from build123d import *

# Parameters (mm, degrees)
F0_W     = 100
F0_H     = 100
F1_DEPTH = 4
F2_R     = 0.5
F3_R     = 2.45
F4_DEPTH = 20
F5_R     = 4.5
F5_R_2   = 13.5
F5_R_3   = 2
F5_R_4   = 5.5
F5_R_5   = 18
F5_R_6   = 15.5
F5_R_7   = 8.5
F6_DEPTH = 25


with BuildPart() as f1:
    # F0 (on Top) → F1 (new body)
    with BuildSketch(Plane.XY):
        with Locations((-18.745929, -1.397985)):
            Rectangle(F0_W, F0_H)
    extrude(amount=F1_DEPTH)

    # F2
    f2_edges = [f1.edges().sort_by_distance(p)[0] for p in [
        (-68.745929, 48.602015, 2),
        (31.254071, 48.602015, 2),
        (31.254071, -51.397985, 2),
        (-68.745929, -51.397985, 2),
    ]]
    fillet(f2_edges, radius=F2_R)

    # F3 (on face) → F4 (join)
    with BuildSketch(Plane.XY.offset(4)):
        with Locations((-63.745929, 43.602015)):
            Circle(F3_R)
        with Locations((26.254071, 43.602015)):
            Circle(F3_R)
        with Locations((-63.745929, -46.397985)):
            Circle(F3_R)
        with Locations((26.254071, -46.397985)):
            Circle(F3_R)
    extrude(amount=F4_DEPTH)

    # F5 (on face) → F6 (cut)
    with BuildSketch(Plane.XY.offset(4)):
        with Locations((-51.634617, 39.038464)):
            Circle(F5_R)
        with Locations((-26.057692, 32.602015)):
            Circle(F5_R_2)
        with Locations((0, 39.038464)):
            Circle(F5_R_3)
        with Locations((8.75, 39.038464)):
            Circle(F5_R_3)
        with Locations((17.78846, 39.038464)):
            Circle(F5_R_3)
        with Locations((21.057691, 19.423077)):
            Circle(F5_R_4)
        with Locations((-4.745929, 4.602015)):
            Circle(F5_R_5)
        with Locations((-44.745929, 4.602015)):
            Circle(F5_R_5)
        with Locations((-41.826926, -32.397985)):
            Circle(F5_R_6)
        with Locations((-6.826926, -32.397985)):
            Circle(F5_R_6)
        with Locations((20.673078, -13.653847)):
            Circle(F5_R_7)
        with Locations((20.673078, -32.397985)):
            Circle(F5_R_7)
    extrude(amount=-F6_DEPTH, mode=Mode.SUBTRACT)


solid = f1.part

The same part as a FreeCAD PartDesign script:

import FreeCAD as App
import Part
import Sketcher
from FreeCAD import Vector


def edges_at(feature, points):
    """Names of the edges that pass closest to the given points."""
    edges = feature.Shape.Edges
    near = lambda p: min(range(len(edges)), key=lambda i: edges[i].distToShape(Part.Vertex(*p))[0])
    return sorted({f"Edge{near(p) + 1}" for p in points})

doc = App.newDocument("Part")
body = doc.addObject("PartDesign::Body", "Body")

sketch1 = body.newObject("Sketcher::SketchObject", "Sketch")
sketch1.AttachmentSupport = (doc.getObject("XY_Plane"), [""])
sketch1.MapMode = "FlatFace"
sketch1.addGeometry(Part.LineSegment(Vector(-68.745929, 48.602015, 0), Vector(-68.745929, -51.397985, 0)), False)
sketch1.addGeometry(Part.LineSegment(Vector(-68.745929, -51.397985, 0), Vector(31.254071, -51.397985, 0)), False)
sketch1.addGeometry(Part.LineSegment(Vector(31.254071, -51.397985, 0), Vector(31.254071, 48.602015, 0)), False)
sketch1.addGeometry(Part.LineSegment(Vector(31.254071, 48.602015, 0), Vector(-68.745929, 48.602015, 0)), False)
sketch1.addConstraint(Sketcher.Constraint("Coincident", 0, 2, 1, 1))
sketch1.addConstraint(Sketcher.Constraint("Coincident", 1, 2, 2, 1))
sketch1.addConstraint(Sketcher.Constraint("Coincident", 2, 2, 3, 1))
sketch1.addConstraint(Sketcher.Constraint("Coincident", 3, 2, 0, 1))
sketch1.addConstraint(Sketcher.Constraint("Vertical", 0))
sketch1.addConstraint(Sketcher.Constraint("Horizontal", 1))
sketch1.addConstraint(Sketcher.Constraint("Vertical", 2))
sketch1.addConstraint(Sketcher.Constraint("Horizontal", 3))
sketch1.addConstraint(Sketcher.Constraint("Equal", 3, 0))
sketch1.addConstraint(Sketcher.Constraint("DistanceX", 1, 1, 1, 2, 100.0))
sketch1.addConstraint(Sketcher.Constraint("DistanceX", 0, 2, -1, 1, 68.745929))
sketch1.addConstraint(Sketcher.Constraint("DistanceY", 0, 2, -1, 1, 51.397985))
pad1 = body.newObject("PartDesign::Pad", "Pad")
pad1.Profile = sketch1
pad1.Length = 4
doc.recompute()

fillet = body.newObject("PartDesign::Fillet", "Fillet")
fillet.Base = (pad1, edges_at(pad1, [
    (-68.746, 48.602, 2),
    (31.254, 48.602, 2),
    (31.254, -51.398, 2),
    (-68.746, -51.398, 2),
]))
fillet.Radius = 0.5

sketch2 = body.newObject("Sketcher::SketchObject", "Sketch001")
sketch2.AttachmentSupport = (doc.getObject("XY_Plane"), [""])
sketch2.MapMode = "FlatFace"
sketch2.AttachmentOffset = App.Placement(Vector(0, 0, 4), App.Rotation())
sketch2.addGeometry(Part.Circle(Vector(-63.745929, 43.602015, 0), Vector(0, 0, 1), 2.45), False)
sketch2.addGeometry(Part.Circle(Vector(26.254071, 43.602015, 0), Vector(0, 0, 1), 2.45), False)
sketch2.addGeometry(Part.Circle(Vector(-63.745929, -46.397985, 0), Vector(0, 0, 1), 2.45), False)
sketch2.addGeometry(Part.Circle(Vector(26.254071, -46.397985, 0), Vector(0, 0, 1), 2.45), False)
sketch2.addConstraint(Sketcher.Constraint("Equal", 0, 1))
sketch2.addConstraint(Sketcher.Constraint("Equal", 1, 2))
sketch2.addConstraint(Sketcher.Constraint("Equal", 2, 3))
sketch2.addConstraint(Sketcher.Constraint("Horizontal", 0, 3, 1, 3))
sketch2.addConstraint(Sketcher.Constraint("Horizontal", 2, 3, 3, 3))
sketch2.addConstraint(Sketcher.Constraint("Vertical", 0, 3, 2, 3))
sketch2.addConstraint(Sketcher.Constraint("Vertical", 1, 3, 3, 3))
sketch2.addConstraint(Sketcher.Constraint("Diameter", 0, 4.9))
sketch2.addConstraint(Sketcher.Constraint("DistanceX", 0, 3, 1, 3, 90.0))
sketch2.addConstraint(Sketcher.Constraint("DistanceY", 2, 3, 0, 3, 90.0))
sketch2.addConstraint(Sketcher.Constraint("DistanceX", 0, 3, -1, 1, 63.745929))
sketch2.addConstraint(Sketcher.Constraint("DistanceY", -1, 1, 0, 3, 43.602015))
pad2 = body.newObject("PartDesign::Pad", "Pad001")
pad2.Profile = sketch2
pad2.Length = 20

sketch3 = body.newObject("Sketcher::SketchObject", "Sketch002")
sketch3.AttachmentSupport = (doc.getObject("XY_Plane"), [""])
sketch3.MapMode = "FlatFace"
sketch3.AttachmentOffset = App.Placement(Vector(0, 0, 4), App.Rotation())
sketch3.addGeometry(Part.Circle(Vector(-51.634617, 39.038464, 0), Vector(0, 0, 1), 4.5), False)
sketch3.addGeometry(Part.Circle(Vector(-26.057692, 32.602015, 0), Vector(0, 0, 1), 13.5), False)
sketch3.addGeometry(Part.Circle(Vector(0, 39.038464, 0), Vector(0, 0, 1), 2), False)
sketch3.addGeometry(Part.Circle(Vector(8.75, 39.038464, 0), Vector(0, 0, 1), 2), False)
sketch3.addGeometry(Part.Circle(Vector(17.78846, 39.038464, 0), Vector(0, 0, 1), 2), False)
sketch3.addGeometry(Part.Circle(Vector(21.057691, 19.423077, 0), Vector(0, 0, 1), 5.5), False)
sketch3.addGeometry(Part.Circle(Vector(-4.745929, 4.602015, 0), Vector(0, 0, 1), 18), False)
sketch3.addGeometry(Part.Circle(Vector(-44.745929, 4.602015, 0), Vector(0, 0, 1), 18), False)
sketch3.addGeometry(Part.Circle(Vector(-41.826926, -32.397985, 0), Vector(0, 0, 1), 15.5), False)
sketch3.addGeometry(Part.Circle(Vector(-6.826926, -32.397985, 0), Vector(0, 0, 1), 15.5), False)
sketch3.addGeometry(Part.Circle(Vector(20.673078, -13.653847, 0), Vector(0, 0, 1), 8.5), False)
sketch3.addGeometry(Part.Circle(Vector(20.673078, -32.397985, 0), Vector(0, 0, 1), 8.5), False)
sketch3.addConstraint(Sketcher.Constraint("Equal", 2, 3))
sketch3.addConstraint(Sketcher.Constraint("Equal", 3, 4))
sketch3.addConstraint(Sketcher.Constraint("Equal", 6, 7))
sketch3.addConstraint(Sketcher.Constraint("Equal", 8, 9))
sketch3.addConstraint(Sketcher.Constraint("Equal", 10, 11))
sketch3.addConstraint(Sketcher.Constraint("PointOnObject", 2, 3, -2))
sketch3.addConstraint(Sketcher.Constraint("Horizontal", 0, 3, 2, 3))
sketch3.addConstraint(Sketcher.Constraint("Horizontal", 2, 3, 3, 3))
sketch3.addConstraint(Sketcher.Constraint("Horizontal", 3, 3, 4, 3))
sketch3.addConstraint(Sketcher.Constraint("Horizontal", 6, 3, 7, 3))
sketch3.addConstraint(Sketcher.Constraint("Horizontal", 8, 3, 9, 3))
sketch3.addConstraint(Sketcher.Constraint("Horizontal", 9, 3, 11, 3))
sketch3.addConstraint(Sketcher.Constraint("Vertical", 10, 3, 11, 3))
sketch3.addConstraint(Sketcher.Constraint("Diameter", 0, 9.0))
sketch3.addConstraint(Sketcher.Constraint("Diameter", 1, 27.0))
sketch3.addConstraint(Sketcher.Constraint("Diameter", 2, 4.0))
sketch3.addConstraint(Sketcher.Constraint("Diameter", 5, 11.0))
sketch3.addConstraint(Sketcher.Constraint("Diameter", 6, 36.0))
sketch3.addConstraint(Sketcher.Constraint("Diameter", 8, 31.0))
sketch3.addConstraint(Sketcher.Constraint("Diameter", 10, 17.0))
sketch3.addConstraint(Sketcher.Constraint("DistanceY", 6, 3, 1, 3, 28.0))
sketch3.addConstraint(Sketcher.Constraint("DistanceX", 7, 3, 6, 3, 40.0))
sketch3.addConstraint(Sketcher.Constraint("DistanceY", 8, 3, 7, 3, 37.0))
sketch3.addConstraint(Sketcher.Constraint("DistanceX", 8, 3, 9, 3, 35.0))
sketch3.addConstraint(Sketcher.Constraint("DistanceX", -1, 1, 3, 3, 8.75))
sketch3.addConstraint(Sketcher.Constraint("DistanceX", 1, 3, -1, 1, 26.057692))
sketch3.addConstraint(Sketcher.Constraint("DistanceX", -1, 1, 4, 3, 17.78846))
sketch3.addConstraint(Sketcher.Constraint("DistanceX", -1, 1, 5, 3, 21.057691))
sketch3.addConstraint(Sketcher.Constraint("DistanceX", 6, 3, -1, 1, 4.745929))
sketch3.addConstraint(Sketcher.Constraint("DistanceX", -1, 1, 10, 3, 20.673078))
sketch3.addConstraint(Sketcher.Constraint("DistanceY", 1, 3, 0, 3, 6.436449))
sketch3.addConstraint(Sketcher.Constraint("DistanceY", 5, 3, 1, 3, 13.178938))
sketch3.addConstraint(Sketcher.Constraint("DistanceX", 0, 3, 7, 3, 6.888688))
sketch3.addConstraint(Sketcher.Constraint("DistanceX", 0, 3, 8, 3, 9.807691))
sketch3.addConstraint(Sketcher.Constraint("DistanceY", 10, 3, 4, 3, 52.692311))
sketch3.addConstraint(Sketcher.Constraint("DistanceY", -1, 1, 0, 3, 39.038464))
pocket1 = body.newObject("PartDesign::Pocket", "Pocket")
pocket1.Profile = sketch3
pocket1.Length = 25

doc.recompute()
